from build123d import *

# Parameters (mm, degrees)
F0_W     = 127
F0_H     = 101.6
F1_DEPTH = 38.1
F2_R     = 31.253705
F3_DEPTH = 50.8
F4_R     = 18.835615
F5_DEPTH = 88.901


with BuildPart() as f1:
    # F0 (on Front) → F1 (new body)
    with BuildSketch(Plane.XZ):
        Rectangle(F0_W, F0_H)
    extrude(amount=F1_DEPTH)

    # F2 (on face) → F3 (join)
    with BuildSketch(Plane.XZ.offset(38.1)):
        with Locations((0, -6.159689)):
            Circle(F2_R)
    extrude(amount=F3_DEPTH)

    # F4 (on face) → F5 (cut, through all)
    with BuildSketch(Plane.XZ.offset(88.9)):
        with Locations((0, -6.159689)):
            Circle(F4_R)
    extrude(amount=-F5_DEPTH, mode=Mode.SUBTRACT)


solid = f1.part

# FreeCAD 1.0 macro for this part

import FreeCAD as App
import Part
import Sketcher
from FreeCAD import Vector
Q = App.Units.Quantity


def add_polygon(sketch, points):
    """Adds a closed chain of lines whose ends are joined by coincident constraints."""
    first, n = sketch.GeometryCount, len(points)
    for a, b in zip(points, points[1:] + points[:1]):
        sketch.addGeometry(Part.LineSegment(App.Vector(*a, 0), App.Vector(*b, 0)), False)
    for i in range(n):
        sketch.addConstraint(Sketcher.Constraint("Coincident", first + i, 2, first + (i + 1) % n, 1))

doc = App.newDocument("Part")
body = doc.addObject("PartDesign::Body", "Body")

sketch1 = body.newObject("Sketcher::SketchObject", "Sketch")
sketch1.AttachmentSupport = (doc.getObject("XZ_Plane"), [""])
sketch1.MapMode = "FlatFace"
add_polygon(sketch1, [(-63.5, 50.8), (-63.5, -50.8), (63.5, -50.8), (63.5, 50.8)])
sketch1.addConstraint([
    Sketcher.Constraint("Vertical", 0),
    Sketcher.Constraint("Horizontal", 1),
    Sketcher.Constraint("Vertical", 2),
    Sketcher.Constraint("Horizontal", 3),
    Sketcher.Constraint("Symmetric", 0, 2, 2, 2, -1, 1),
    Sketcher.Constraint("DistanceX", 1, 1, 1, 2, Q("5 in")),
    Sketcher.Constraint("DistanceY", 0, 2, 0, 1, Q("4 in")),
])
pad1 = body.newObject("PartDesign::Pad", "Pad")
pad1.Profile = sketch1
pad1.Length = Q("1.5 in")

sketch2 = body.newObject("Sketcher::SketchObject", "Sketch001")
sketch2.AttachmentSupport = (doc.getObject("XZ_Plane"), [""])
sketch2.MapMode = "FlatFace"
sketch2.AttachmentOffset = App.Placement(Vector(0, 0, 1.5 * 25.4), App.Rotation())
sketch2.addGeometry(Part.Circle(Vector(0, -6.159689, 0), Vector(0, 0, 1), 31.253705), False)
sketch2.addConstraint([
    Sketcher.Constraint("PointOnObject", 0, 3, -2),
    Sketcher.Constraint("Diameter", 0, Q("62.50741 mm")),
    Sketcher.Constraint("DistanceY", 0, 3, -1, 1, Q("6.159689 mm")),
])
pad2 = body.newObject("PartDesign::Pad", "Pad001")
pad2.Profile = sketch2
pad2.Length = Q("2 in")

sketch3 = body.newObject("Sketcher::SketchObject", "Sketch002")
sketch3.AttachmentSupport = (doc.getObject("XZ_Plane"), [""])
sketch3.MapMode = "FlatFace"
sketch3.AttachmentOffset = App.Placement(Vector(0, 0, 3.5 * 25.4), App.Rotation())
sketch3.addGeometry(Part.Circle(Vector(0, -6.159689, 0), Vector(0, 0, 1), 18.835615), False)
sketch3.addConstraint([
    Sketcher.Constraint("PointOnObject", 0, 3, -2),
    Sketcher.Constraint("Diameter", 0, Q("37.67123 mm")),
    Sketcher.Constraint("DistanceY", 0, 3, -1, 1, Q("6.159689 mm")),
])
pocket1 = body.newObject("PartDesign::Pocket", "Pocket")
pocket1.Profile = sketch3
pocket1.Type = "ThroughAll"

doc.recompute()
